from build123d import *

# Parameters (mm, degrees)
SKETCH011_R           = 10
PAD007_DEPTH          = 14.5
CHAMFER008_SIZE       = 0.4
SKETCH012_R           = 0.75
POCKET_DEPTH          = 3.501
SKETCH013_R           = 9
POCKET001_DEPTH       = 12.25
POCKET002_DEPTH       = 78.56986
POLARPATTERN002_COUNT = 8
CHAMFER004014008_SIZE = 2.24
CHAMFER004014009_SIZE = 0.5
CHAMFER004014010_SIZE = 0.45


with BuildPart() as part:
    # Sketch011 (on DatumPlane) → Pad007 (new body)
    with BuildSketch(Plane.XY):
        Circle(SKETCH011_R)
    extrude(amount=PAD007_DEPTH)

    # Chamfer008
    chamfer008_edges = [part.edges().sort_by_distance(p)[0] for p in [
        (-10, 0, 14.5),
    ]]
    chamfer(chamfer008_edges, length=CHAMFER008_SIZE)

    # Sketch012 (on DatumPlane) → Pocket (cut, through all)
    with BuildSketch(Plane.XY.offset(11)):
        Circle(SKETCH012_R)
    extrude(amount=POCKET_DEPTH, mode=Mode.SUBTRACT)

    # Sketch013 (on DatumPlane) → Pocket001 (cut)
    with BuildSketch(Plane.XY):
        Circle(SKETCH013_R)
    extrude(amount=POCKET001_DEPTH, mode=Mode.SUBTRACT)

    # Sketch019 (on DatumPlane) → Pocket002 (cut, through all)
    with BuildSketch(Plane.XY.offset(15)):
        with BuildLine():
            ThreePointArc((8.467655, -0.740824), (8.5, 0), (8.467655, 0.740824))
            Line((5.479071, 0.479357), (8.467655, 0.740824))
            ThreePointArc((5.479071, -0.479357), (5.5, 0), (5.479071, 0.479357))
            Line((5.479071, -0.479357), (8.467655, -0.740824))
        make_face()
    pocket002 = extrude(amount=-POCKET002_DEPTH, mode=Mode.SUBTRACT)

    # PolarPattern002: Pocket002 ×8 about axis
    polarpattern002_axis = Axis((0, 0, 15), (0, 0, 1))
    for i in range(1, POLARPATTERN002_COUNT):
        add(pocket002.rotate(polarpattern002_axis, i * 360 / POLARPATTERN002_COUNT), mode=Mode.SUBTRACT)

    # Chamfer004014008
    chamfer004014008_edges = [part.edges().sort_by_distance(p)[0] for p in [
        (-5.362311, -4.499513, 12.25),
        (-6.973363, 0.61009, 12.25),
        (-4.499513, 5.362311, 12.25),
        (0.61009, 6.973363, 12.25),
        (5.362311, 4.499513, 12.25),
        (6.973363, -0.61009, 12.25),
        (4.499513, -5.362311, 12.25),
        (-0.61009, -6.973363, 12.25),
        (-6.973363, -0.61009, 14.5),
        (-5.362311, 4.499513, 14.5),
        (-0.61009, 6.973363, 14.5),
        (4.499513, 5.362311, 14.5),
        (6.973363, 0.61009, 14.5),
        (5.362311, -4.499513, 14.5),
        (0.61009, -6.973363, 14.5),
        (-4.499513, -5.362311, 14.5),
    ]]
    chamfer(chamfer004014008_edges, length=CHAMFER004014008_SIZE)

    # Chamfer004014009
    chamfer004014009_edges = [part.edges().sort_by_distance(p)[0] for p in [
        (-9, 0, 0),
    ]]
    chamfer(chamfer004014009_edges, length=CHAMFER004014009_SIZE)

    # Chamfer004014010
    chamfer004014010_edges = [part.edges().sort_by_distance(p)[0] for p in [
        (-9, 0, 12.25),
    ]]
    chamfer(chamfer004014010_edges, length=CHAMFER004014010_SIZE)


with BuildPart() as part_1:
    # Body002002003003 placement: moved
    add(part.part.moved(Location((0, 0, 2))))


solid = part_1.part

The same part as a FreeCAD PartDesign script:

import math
import FreeCAD as App
import Part
import Sketcher
from FreeCAD import Vector
Q = App.Units.Quantity


def edges_at(feature, points):
    """Names of the edges that pass closest to the given points."""
    edges = feature.Shape.Edges
    near = lambda p: min(range(len(edges)), key=lambda i: edges[i].distToShape(Part.Vertex(*p))[0])
    return sorted({f"Edge{near(p) + 1}" for p in points})

doc = App.newDocument("Part")
body = doc.addObject("PartDesign::Body", "Body")

sketch1 = doc.addObject("Sketcher::SketchObject", "Sketch")
body.addObject(sketch1)
sketch1.AttachmentSupport = (doc.XY_Plane, [""])
sketch1.MapMode = "FlatFace"
sketch1.addGeometry(Part.Circle(Vector(0, 0, 0), Vector(0, 0, 1), 10), False)
sketch1.addConstraint(Sketcher.Constraint("Coincident", 0, 3, -1, 1))
sketch1.addConstraint(Sketcher.Constraint("Diameter", 0, 20.0))
pad1 = doc.addObject("PartDesign::Pad", "Pad")
body.addObject(pad1)
pad1.Profile = sketch1
pad1.Length = 14.5
doc.recompute()

chamfer = doc.addObject("PartDesign::Chamfer", "Chamfer")
body.addObject(chamfer)
chamfer.Base = (pad1, edges_at(pad1, [(-10, 0, 14.5)]))
chamfer.Size = 0.4

sketch2 = doc.addObject("Sketcher::SketchObject", "Sketch001")
body.addObject(sketch2)
sketch2.AttachmentSupport = (doc.XY_Plane, [""])
sketch2.MapMode = "FlatFace"
sketch2.AttachmentOffset = App.Placement(Vector(0, 0, 11), App.Rotation())
sketch2.addGeometry(Part.Circle(Vector(0, 0, 0), Vector(0, 0, 1), 0.75), False)
sketch2.addConstraint(Sketcher.Constraint("Coincident", 0, 3, -1, 1))
sketch2.addConstraint(Sketcher.Constraint("Diameter", 0, 1.5))
pocket1 = doc.addObject("PartDesign::Pocket", "Pocket")
body.addObject(pocket1)
pocket1.Profile = sketch2
pocket1.Type = "ThroughAll"
pocket1.Reversed = True

sketch3 = doc.addObject("Sketcher::SketchObject", "Sketch002")
body.addObject(sketch3)
sketch3.AttachmentSupport = (doc.XY_Plane, [""])
sketch3.MapMode = "FlatFace"
sketch3.addGeometry(Part.Circle(Vector(0, 0, 0), Vector(0, 0, 1), 9), False)
sketch3.addConstraint(Sketcher.Constraint("Coincident", 0, 3, -1, 1))
sketch3.addConstraint(Sketcher.Constraint("Diameter", 0, 18.0))
pocket2 = doc.addObject("PartDesign::Pocket", "Pocket001")
body.addObject(pocket2)
pocket2.Profile = sketch3
pocket2.Length = 12.25
pocket2.Reversed = True

sketch4 = doc.addObject("Sketcher::SketchObject", "Sketch003")
body.addObject(sketch4)
sketch4.AttachmentSupport = (doc.XY_Plane, [""])
sketch4.MapMode = "FlatFace"
sketch4.AttachmentOffset = App.Placement(Vector(0, 0, 15), App.Rotation())
sketch4.addGeometry(Part.ArcOfCircle(Part.Circle(Vector(-0.000022, 0, 0), Vector(0, 0, 1), 8.500022), math.radians(-4.999989), math.radians(4.999989)), False)
sketch4.addGeometry(Part.LineSegment(Vector(8.467655, 0.740824, 0), Vector(5.479071, 0.479357, 0)), False)
sketch4.addGeometry(Part.ArcOfCircle(Part.Circle(Vector(-0.000052, 0, 0), Vector(0, 0, 1), 5.500052), math.radians(-4.999957), math.radians(4.999957)), False)
sketch4.addGeometry(Part.LineSegment(Vector(5.479071, -0.479357, 0), Vector(8.467655, -0.740824, 0)), False)
sketch4.addConstraint(Sketcher.Constraint("Coincident", 0, 2, 1, 1))
sketch4.addConstraint(Sketcher.Constraint("Coincident", 1, 2, 2, 2))
sketch4.addConstraint(Sketcher.Constraint("Coincident", 2, 1, 3, 1))
sketch4.addConstraint(Sketcher.Constraint("Coincident", 3, 2, 0, 1))
sketch4.addConstraint(Sketcher.Constraint("Symmetric", 1, 2, 2, 1, -1))
sketch4.addConstraint(Sketcher.Constraint("Symmetric", 0, 2, 3, 2, -1))
sketch4.addConstraint(Sketcher.Constraint("Angle", 1, Q("-175.000004 deg")))
sketch4.addConstraint(Sketcher.Constraint("Distance", 1, 3.0))
sketch4.addConstraint(Sketcher.Constraint("Radius", 0, 8.500022))
sketch4.addConstraint(Sketcher.Constraint("Radius", 2, 5.500052))
sketch4.addConstraint(Sketcher.Constraint("DistanceX", -1, 1, 1, 2, 5.479071))
sketch4.addConstraint(Sketcher.Constraint("DistanceY", 2, 1, 0, 2, 1.220181))
pocket3 = doc.addObject("PartDesign::Pocket", "Pocket002")
body.addObject(pocket3)
pocket3.Profile = sketch4
pocket3.Type = "ThroughAll"
doc.recompute()

polarpattern = doc.addObject("PartDesign::PolarPattern", "PolarPattern")
body.addObject(polarpattern)
polarpattern.Originals = [pocket3]
polarpattern.Axis = (doc.Z_Axis, [""])
polarpattern.Angle = 360
polarpattern.Occurrences = 8
body.Tip = polarpattern
doc.recompute()

chamfer2 = doc.addObject("PartDesign::Chamfer", "Chamfer001")
body.addObject(chamfer2)
chamfer2.Base = (polarpattern, edges_at(polarpattern, [
    (-5.362, -4.5, 12.25),
    (-6.973, 0.61, 12.25),
    (-4.5, 5.362, 12.25),
    (0.61, 6.973, 12.25),
    (5.362, 4.5, 12.25),
    (6.973, -0.61, 12.25),
    (4.5, -5.362, 12.25),
    (-0.61, -6.973, 12.25),
    (-6.973, -0.61, 14.5),
    (-5.362, 4.5, 14.5),
    (-0.61, 6.973, 14.5),
    (4.5, 5.362, 14.5),
    (6.973, 0.61, 14.5),
    (5.362, -4.5, 14.5),
    (0.61, -6.973, 14.5),
    (-4.5, -5.362, 14.5),
]))
chamfer2.Size = 2.24
doc.recompute()

chamfer3 = doc.addObject("PartDesign::Chamfer", "Chamfer002")
body.addObject(chamfer3)
chamfer3.Base = (chamfer2, edges_at(chamfer2, [(-9, 0, 0)]))
chamfer3.Size = 0.5
doc.recompute()

chamfer4 = doc.addObject("PartDesign::Chamfer", "Chamfer003")
body.addObject(chamfer4)
chamfer4.Base = (chamfer3, edges_at(chamfer3, [(-9, 0, 12.25)]))
chamfer4.Size = 0.45
body2 = doc.addObject("PartDesign::Body", "Body001")
doc.recompute()

body.Placement = App.Placement(Vector(0, 0, 2), App.Rotation(Vector(0, 0, 1), 0))
boolean = doc.addObject("PartDesign::Boolean", "Boolean")
body2.addObject(boolean)
boolean.Type = "Fuse"
boolean.addObjects([body])

doc.recompute()
